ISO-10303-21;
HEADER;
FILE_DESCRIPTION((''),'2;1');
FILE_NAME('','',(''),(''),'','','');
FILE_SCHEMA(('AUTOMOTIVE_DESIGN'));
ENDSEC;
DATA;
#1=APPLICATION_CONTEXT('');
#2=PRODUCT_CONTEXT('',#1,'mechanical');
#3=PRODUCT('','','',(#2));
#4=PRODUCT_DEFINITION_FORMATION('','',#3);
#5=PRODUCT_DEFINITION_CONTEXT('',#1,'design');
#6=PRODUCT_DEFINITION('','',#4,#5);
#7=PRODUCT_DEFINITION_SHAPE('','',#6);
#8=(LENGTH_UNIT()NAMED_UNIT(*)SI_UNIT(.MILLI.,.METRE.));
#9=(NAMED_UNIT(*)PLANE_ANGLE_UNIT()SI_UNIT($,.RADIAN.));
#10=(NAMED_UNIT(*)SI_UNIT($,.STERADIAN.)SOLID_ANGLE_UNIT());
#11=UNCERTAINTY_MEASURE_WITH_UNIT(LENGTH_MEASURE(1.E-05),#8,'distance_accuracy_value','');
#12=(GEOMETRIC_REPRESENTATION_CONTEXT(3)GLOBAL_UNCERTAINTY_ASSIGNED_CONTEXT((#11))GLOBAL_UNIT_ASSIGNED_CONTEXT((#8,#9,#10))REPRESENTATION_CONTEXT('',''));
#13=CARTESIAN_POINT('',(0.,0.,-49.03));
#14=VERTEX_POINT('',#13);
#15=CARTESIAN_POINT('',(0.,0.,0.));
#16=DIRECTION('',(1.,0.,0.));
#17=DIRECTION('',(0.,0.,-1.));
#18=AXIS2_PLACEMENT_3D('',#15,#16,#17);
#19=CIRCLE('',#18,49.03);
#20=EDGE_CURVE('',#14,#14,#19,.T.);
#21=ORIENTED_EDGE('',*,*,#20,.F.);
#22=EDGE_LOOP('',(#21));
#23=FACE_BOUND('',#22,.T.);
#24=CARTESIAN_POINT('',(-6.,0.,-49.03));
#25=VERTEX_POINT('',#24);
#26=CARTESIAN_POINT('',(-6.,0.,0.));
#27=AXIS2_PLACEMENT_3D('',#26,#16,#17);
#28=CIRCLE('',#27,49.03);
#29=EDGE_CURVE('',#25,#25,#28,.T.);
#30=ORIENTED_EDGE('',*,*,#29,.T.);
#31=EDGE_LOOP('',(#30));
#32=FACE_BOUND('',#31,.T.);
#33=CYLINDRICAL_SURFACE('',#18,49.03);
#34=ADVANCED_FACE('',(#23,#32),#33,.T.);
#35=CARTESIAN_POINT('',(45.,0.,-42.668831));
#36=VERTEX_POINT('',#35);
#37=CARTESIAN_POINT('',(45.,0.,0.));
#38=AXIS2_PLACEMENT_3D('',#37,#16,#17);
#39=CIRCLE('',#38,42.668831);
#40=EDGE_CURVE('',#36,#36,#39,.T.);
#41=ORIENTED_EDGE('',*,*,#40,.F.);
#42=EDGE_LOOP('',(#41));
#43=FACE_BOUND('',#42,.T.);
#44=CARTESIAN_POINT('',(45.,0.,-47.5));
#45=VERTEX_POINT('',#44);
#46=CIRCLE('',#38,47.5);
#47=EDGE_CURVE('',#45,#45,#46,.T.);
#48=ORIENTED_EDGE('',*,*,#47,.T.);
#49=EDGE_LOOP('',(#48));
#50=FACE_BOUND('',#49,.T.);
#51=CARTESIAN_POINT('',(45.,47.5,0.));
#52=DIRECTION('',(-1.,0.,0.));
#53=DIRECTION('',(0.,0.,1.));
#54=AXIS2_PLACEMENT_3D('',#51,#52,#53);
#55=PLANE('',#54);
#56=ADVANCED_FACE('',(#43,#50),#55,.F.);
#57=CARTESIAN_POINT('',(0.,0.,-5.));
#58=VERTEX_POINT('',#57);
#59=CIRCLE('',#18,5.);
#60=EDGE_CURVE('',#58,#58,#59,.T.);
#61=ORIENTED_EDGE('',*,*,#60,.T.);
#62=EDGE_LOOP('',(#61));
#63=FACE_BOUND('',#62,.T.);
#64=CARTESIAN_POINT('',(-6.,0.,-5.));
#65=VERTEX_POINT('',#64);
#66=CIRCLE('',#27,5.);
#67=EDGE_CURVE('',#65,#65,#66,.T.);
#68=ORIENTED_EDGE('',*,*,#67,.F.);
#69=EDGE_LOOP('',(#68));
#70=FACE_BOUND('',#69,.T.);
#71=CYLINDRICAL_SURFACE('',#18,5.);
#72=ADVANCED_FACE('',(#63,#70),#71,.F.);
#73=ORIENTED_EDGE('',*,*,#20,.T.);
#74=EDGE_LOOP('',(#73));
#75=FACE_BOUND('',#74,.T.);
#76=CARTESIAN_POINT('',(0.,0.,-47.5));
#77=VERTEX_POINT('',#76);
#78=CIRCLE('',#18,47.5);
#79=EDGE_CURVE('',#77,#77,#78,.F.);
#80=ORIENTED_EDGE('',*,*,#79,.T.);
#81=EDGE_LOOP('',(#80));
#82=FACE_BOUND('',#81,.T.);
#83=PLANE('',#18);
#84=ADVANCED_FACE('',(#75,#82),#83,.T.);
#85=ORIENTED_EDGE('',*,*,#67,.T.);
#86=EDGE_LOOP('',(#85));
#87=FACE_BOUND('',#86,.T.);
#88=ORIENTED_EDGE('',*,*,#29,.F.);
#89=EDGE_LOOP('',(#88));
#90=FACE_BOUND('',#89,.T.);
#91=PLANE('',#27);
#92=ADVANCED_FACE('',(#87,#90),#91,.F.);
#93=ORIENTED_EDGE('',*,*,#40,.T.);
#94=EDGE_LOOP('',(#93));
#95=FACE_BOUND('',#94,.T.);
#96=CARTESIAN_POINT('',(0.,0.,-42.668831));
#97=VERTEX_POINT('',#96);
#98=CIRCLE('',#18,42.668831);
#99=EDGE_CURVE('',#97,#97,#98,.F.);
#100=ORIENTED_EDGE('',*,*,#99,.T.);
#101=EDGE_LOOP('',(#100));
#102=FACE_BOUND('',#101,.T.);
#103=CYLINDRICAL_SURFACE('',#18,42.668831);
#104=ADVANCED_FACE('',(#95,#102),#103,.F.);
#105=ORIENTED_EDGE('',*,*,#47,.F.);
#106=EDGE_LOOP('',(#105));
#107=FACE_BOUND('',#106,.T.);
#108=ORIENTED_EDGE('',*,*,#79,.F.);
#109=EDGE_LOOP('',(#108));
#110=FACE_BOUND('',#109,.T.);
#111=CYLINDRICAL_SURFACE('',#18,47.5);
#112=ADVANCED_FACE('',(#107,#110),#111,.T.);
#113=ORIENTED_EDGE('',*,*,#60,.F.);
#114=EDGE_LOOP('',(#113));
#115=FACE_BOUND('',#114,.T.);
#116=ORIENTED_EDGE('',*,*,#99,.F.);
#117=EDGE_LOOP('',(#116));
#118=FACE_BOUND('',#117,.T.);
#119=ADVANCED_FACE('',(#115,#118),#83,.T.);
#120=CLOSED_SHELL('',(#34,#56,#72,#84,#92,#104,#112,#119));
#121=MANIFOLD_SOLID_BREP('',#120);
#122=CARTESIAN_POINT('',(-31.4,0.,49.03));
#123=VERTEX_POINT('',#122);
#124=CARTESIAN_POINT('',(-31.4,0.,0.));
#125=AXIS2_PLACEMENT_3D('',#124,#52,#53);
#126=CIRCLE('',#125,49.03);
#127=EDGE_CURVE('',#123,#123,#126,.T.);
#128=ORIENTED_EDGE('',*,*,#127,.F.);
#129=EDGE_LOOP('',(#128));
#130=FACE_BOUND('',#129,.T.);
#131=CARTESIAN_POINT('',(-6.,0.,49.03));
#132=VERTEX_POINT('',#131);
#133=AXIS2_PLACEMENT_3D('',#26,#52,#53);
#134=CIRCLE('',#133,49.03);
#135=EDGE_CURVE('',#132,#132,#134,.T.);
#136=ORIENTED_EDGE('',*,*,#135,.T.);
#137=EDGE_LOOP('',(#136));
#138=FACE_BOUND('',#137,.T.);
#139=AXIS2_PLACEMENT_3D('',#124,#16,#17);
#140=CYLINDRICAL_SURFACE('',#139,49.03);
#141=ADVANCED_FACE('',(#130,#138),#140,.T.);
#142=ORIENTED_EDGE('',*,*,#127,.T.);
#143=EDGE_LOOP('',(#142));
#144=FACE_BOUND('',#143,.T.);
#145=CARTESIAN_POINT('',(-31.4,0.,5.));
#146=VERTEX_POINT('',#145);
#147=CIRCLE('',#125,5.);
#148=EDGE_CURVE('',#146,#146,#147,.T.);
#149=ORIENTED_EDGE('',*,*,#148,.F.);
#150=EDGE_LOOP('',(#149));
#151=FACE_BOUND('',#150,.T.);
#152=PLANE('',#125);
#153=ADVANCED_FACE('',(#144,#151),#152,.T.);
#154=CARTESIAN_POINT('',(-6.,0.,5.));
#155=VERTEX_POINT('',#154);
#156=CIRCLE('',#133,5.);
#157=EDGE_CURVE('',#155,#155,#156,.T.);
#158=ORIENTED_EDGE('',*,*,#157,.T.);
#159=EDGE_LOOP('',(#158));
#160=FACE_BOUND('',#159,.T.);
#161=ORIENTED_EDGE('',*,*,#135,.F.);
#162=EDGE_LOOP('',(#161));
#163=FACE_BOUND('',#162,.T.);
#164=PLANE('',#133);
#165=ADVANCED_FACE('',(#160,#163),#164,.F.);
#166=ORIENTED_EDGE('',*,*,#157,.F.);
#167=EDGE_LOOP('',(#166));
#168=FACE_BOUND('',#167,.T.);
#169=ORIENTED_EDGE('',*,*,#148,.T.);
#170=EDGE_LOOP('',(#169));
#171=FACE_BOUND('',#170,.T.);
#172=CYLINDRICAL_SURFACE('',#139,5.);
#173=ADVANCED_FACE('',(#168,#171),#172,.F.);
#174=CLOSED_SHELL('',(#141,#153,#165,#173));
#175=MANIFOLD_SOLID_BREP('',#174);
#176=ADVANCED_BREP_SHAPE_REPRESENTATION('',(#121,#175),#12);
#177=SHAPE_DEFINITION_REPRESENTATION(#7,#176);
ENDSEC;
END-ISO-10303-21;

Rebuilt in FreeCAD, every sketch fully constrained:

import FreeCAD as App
import Part
import Sketcher

doc = App.newDocument("Part")
body = doc.addObject("PartDesign::Body", "Body")

sketch1 = body.newObject("Sketcher::SketchObject", "Sketch")
sketch1.AttachmentSupport = (doc.getObject("XY_Plane"), [""])
sketch1.MapMode = "FlatFace"
sketch1.addGeometry([
    Part.LineSegment(App.Vector(-6, 5, 0), App.Vector(0, 5, 0)),
    Part.LineSegment(App.Vector(0, 5, 0), App.Vector(0, 42.7, 0)),
    Part.LineSegment(App.Vector(0, 42.7, 0), App.Vector(45, 42.7, 0)),
    Part.LineSegment(App.Vector(45, 42.7, 0), App.Vector(45, 47.5, 0)),
    Part.LineSegment(App.Vector(45, 47.5, 0), App.Vector(0, 47.5, 0)),
    Part.LineSegment(App.Vector(0, 47.5, 0), App.Vector(0, 49, 0)),
    Part.LineSegment(App.Vector(0, 49, 0), App.Vector(-6, 49, 0)),
    Part.LineSegment(App.Vector(-6, 49, 0), App.Vector(-6, 5, 0)),
], False)
sketch1.addConstraint([
    Sketcher.Constraint("Coincident", 0, 2, 1, 1),
    Sketcher.Constraint("Coincident", 1, 2, 2, 1),
    Sketcher.Constraint("Coincident", 2, 2, 3, 1),
    Sketcher.Constraint("Coincident", 3, 2, 4, 1),
    Sketcher.Constraint("Coincident", 4, 2, 5, 1),
    Sketcher.Constraint("Coincident", 5, 2, 6, 1),
    Sketcher.Constraint("Coincident", 6, 2, 7, 1),
    Sketcher.Constraint("Coincident", 7, 2, 0, 1),
    Sketcher.Constraint("Horizontal", 0),
    Sketcher.Constraint("Vertical", 1),
    Sketcher.Constraint("Horizontal", 2),
    Sketcher.Constraint("Vertical", 3),
    Sketcher.Constraint("Horizontal", 4),
    Sketcher.Constraint("Vertical", 5),
    Sketcher.Constraint("Horizontal", 6),
    Sketcher.Constraint("Vertical", 7),
    Sketcher.Constraint("PointOnObject", 0, 2, -2),
    Sketcher.Constraint("PointOnObject", 4, 2, -2),
    Sketcher.Constraint("DistanceX", 0, 1, 0, 2, 6.0),
    Sketcher.Constraint("DistanceX", 2, 1, 2, 2, 45.0),
    Sketcher.Constraint("DistanceY", -1, 1, 0, 2, 5.0),
    Sketcher.Constraint("DistanceY", 5, 1, 5, 2, 1.53),
    Sketcher.Constraint("DistanceY", 7, 2, 7, 1, 44.03),
    Sketcher.Constraint("DistanceY", 1, 1, 1, 2, 37.668831),
])
revolution = body.newObject("PartDesign::Revolution", "Revolution")
revolution.Profile = sketch1
revolution.ReferenceAxis = (sketch1, ["H_Axis"])
revolution.Angle = 360
body2 = doc.addObject("PartDesign::Body", "Body001")

sketch2 = body2.newObject("Sketcher::SketchObject", "Sketch001")
sketch2.AttachmentSupport = (doc.getObject("YZ_Plane001"), [""])
sketch2.MapMode = "FlatFace"
sketch2.AttachmentOffset = App.Placement(App.Vector(0, 0, -6), App.Rotation())
sketch2.addGeometry([
    Part.Circle(App.Vector(0, 0, 0), App.Vector(0, 0, 1), 49),
    Part.Circle(App.Vector(0, 0, 0), App.Vector(0, 0, 1), 5),
], False)
sketch2.addConstraint([
    Sketcher.Constraint("Coincident", 0, 3, -1, 1),
    Sketcher.Constraint("Coincident", 1, 3, -1, 1),
    Sketcher.Constraint("Diameter", 1, 10.0),
    Sketcher.Constraint("Diameter", 0, 98.06),
])
pad1 = body2.newObject("PartDesign::Pad", "Pad")
pad1.Profile = sketch2
pad1.Length = 25.4
pad1.Reversed = True

doc.recompute()
